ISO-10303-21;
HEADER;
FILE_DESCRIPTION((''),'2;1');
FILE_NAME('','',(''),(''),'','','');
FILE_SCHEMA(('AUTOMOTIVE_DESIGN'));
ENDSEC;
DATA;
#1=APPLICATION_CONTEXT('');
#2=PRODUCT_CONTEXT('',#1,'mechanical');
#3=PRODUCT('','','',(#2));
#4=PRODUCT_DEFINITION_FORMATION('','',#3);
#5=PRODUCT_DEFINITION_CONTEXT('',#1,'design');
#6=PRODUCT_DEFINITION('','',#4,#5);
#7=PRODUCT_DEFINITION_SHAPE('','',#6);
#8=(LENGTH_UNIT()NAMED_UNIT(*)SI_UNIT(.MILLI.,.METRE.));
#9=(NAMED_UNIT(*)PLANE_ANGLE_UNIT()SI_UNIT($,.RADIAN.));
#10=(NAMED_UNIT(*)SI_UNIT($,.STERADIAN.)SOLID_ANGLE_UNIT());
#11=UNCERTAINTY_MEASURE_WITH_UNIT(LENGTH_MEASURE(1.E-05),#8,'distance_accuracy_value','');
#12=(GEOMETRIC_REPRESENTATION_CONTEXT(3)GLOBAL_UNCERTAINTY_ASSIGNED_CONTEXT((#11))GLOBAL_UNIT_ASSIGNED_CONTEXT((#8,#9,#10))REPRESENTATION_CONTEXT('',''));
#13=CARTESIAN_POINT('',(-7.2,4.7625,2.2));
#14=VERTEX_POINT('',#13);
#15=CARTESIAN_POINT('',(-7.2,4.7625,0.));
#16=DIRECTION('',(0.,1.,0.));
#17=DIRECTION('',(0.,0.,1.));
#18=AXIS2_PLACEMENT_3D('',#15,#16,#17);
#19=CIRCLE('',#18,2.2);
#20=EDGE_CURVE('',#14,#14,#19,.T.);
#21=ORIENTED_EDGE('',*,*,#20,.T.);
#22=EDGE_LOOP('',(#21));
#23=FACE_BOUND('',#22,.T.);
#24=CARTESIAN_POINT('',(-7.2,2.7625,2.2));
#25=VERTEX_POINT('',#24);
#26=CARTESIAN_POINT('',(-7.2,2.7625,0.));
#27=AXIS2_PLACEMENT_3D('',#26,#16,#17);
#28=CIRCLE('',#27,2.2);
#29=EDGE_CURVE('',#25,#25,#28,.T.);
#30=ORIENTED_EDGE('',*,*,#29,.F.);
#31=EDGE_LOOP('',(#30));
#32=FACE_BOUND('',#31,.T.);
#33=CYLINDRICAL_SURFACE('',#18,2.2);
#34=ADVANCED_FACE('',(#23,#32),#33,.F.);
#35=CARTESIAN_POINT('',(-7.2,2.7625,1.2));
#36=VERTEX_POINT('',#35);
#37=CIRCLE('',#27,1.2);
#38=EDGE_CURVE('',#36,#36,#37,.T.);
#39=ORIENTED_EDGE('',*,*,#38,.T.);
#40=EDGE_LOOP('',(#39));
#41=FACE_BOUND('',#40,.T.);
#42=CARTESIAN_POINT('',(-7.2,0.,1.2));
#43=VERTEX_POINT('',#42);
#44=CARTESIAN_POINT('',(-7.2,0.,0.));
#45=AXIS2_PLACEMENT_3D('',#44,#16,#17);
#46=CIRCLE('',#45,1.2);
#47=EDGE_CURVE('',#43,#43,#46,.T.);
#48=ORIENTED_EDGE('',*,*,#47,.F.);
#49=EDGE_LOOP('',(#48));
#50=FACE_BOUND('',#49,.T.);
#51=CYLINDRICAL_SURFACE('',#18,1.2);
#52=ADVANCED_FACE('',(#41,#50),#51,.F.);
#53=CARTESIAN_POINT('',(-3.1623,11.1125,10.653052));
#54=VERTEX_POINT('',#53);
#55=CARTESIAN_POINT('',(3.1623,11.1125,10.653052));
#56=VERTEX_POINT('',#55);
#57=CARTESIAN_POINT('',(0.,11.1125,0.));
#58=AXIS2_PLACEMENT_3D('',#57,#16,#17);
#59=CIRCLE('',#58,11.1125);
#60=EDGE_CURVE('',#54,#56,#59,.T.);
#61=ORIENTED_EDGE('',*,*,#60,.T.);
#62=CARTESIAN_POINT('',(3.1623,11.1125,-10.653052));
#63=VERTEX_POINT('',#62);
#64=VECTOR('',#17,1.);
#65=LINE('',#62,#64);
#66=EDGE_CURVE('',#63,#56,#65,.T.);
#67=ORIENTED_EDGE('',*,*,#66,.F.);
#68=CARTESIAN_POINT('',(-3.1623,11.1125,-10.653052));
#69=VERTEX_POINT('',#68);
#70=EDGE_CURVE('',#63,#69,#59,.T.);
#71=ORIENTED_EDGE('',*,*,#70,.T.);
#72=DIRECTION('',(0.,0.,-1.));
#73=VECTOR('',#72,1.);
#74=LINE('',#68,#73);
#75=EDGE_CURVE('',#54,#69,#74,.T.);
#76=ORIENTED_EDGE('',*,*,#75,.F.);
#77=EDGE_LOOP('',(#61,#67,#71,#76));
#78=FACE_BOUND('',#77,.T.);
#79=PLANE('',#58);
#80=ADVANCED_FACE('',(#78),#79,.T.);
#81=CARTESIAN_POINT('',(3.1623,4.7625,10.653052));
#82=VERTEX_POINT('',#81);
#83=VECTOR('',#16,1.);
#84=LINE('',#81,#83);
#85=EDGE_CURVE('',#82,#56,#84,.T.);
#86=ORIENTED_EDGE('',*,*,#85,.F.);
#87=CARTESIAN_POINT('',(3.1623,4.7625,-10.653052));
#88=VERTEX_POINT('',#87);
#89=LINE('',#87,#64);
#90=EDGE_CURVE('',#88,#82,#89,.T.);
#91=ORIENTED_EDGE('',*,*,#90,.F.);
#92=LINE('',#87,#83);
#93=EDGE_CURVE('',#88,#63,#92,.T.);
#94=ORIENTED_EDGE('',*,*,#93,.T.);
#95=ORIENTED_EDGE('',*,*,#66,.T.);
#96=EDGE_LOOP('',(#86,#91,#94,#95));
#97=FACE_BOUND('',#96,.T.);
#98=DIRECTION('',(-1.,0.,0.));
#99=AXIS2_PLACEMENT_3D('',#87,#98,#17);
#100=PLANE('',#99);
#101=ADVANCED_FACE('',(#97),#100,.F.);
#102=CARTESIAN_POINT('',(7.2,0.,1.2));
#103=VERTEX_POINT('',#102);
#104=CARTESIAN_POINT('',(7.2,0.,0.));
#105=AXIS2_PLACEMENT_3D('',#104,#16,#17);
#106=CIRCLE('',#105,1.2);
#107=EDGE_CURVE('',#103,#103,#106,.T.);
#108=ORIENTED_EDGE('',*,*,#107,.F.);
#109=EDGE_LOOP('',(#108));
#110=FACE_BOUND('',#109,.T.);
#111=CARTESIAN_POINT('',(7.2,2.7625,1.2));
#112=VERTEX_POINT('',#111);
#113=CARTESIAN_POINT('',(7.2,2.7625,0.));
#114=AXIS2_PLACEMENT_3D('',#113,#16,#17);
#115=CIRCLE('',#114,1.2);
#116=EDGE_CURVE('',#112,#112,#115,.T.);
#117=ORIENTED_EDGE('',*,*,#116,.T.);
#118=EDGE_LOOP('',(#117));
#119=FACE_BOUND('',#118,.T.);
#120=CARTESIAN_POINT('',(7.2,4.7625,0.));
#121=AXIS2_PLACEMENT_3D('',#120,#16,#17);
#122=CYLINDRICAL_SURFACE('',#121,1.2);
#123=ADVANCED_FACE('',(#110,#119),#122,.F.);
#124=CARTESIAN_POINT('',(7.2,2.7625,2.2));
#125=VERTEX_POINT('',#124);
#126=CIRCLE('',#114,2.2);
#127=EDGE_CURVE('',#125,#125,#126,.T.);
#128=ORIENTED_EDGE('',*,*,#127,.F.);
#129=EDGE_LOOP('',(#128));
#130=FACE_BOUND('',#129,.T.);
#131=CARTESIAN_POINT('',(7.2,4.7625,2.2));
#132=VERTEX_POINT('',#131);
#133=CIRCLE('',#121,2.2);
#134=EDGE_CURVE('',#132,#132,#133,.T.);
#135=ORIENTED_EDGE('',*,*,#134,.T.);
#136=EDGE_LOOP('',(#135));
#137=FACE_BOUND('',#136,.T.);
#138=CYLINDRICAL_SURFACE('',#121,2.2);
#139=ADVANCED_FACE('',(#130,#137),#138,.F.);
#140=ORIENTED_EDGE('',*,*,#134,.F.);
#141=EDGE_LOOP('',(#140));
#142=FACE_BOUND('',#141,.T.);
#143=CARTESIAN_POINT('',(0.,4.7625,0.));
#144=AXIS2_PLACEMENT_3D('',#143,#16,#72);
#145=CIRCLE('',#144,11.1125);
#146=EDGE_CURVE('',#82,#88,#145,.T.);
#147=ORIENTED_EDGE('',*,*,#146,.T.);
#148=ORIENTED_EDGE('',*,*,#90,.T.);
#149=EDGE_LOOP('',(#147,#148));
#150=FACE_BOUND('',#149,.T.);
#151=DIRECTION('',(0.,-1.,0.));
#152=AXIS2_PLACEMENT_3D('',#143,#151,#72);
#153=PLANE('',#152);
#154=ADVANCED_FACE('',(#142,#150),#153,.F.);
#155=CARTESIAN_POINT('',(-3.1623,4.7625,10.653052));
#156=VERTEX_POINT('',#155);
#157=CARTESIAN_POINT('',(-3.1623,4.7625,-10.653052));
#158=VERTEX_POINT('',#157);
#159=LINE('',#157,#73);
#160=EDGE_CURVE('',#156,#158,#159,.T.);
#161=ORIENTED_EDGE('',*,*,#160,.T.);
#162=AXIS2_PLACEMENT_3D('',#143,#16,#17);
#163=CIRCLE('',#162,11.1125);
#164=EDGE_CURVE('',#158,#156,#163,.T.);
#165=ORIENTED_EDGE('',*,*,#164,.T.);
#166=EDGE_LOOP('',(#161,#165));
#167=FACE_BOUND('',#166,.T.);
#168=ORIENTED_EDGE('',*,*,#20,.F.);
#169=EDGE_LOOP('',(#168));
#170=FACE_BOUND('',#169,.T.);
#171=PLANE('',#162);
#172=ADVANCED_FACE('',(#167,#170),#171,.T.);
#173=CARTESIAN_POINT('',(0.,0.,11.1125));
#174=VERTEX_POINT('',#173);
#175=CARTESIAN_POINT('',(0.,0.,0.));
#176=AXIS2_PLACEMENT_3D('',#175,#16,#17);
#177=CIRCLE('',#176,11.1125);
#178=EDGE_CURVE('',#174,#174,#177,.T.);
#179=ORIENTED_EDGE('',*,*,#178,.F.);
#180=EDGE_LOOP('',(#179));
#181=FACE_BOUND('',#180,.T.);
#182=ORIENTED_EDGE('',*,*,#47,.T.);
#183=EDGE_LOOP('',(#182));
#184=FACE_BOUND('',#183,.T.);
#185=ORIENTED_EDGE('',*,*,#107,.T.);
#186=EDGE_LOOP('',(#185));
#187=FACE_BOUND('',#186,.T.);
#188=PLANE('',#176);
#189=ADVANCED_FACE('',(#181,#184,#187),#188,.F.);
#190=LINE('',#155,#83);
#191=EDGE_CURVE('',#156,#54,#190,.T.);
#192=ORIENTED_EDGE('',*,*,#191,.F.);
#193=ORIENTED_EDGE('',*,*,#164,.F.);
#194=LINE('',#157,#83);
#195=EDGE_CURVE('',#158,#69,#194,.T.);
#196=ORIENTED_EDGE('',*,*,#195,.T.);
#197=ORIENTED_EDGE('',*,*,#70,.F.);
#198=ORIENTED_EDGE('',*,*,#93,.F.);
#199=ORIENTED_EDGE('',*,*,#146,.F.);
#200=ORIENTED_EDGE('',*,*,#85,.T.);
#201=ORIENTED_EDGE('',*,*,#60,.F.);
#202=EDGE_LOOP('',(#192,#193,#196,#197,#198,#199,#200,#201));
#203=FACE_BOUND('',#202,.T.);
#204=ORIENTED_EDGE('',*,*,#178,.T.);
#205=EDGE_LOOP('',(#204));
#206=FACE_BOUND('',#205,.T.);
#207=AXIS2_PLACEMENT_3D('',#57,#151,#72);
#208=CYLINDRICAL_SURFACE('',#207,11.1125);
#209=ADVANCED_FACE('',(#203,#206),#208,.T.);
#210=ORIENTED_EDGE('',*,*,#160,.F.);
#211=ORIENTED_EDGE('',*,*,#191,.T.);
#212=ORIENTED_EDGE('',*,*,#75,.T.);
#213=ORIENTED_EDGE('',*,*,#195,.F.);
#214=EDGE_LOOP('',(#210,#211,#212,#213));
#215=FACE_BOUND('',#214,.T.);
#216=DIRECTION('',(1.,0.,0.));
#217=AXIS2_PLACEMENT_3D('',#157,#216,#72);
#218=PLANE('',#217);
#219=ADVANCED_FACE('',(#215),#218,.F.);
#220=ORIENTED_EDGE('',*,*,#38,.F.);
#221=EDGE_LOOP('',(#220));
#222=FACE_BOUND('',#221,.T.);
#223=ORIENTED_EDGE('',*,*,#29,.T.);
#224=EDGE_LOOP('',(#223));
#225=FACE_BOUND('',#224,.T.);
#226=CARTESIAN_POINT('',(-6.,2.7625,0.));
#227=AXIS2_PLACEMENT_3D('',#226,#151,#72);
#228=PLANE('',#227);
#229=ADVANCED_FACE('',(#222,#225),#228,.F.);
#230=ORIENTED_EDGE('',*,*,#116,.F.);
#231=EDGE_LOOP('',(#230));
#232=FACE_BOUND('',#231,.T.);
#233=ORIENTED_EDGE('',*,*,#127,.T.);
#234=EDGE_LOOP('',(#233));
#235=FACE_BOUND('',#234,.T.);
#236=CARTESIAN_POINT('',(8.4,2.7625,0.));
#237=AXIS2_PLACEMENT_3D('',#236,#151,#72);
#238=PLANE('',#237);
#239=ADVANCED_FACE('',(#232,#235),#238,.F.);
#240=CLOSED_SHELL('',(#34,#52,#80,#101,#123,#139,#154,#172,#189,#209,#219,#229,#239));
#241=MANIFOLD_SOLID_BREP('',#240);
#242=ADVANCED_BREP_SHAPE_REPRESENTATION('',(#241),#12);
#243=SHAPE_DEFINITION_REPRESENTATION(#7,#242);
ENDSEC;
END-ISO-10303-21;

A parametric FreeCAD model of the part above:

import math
import FreeCAD as App
import Part
import Sketcher
Q = App.Units.Quantity

doc = App.newDocument("Part")
body = doc.addObject("PartDesign::Body", "Body")

# Sketch on XZ plane
sketch1 = body.newObject("Sketcher::SketchObject", "Sketch")
sketch1.AttachmentSupport = (doc.getObject("XZ_Plane"), [""])
sketch1.MapMode = "FlatFace"
sketch1.addGeometry(Part.Circle(App.Vector(0, 0, 0), App.Vector(0, 0, 1), 11.1125), False)
sketch1.addConstraint(Sketcher.Constraint("Coincident", 0, 3, -1, 1))
sketch1.addConstraint(Sketcher.Constraint("Diameter", 0, Q("0.875 in")))
pad1 = body.newObject("PartDesign::Pad", "Pad")
pad1.Profile = sketch1
pad1.Length = Q("0.4375 in")
pad1.Reversed = True

# Sketch on XZ plane
sketch2 = body.newObject("Sketcher::SketchObject", "Sketch001")
sketch2.AttachmentSupport = (doc.getObject("XZ_Plane"), [""])
sketch2.MapMode = "FlatFace"
sketch2.AttachmentOffset = App.Placement(App.Vector(0, 0, -0.1875 * 25.4), App.Rotation())
sketch2.addGeometry(Part.LineSegment(App.Vector(-3.1623, 10.653052, 0), App.Vector(-3.1623, -10.653052, 0)), False)
sketch2.addGeometry(Part.ArcOfCircle(Part.Circle(App.Vector(0, 0, 0), App.Vector(0, 0, 1), 11.1125), math.radians(106.533233), math.radians(253.466767)), False)
sketch2.addGeometry(Part.LineSegment(App.Vector(3.1623, -10.653052, 0), App.Vector(3.1623, 10.653052, 0)), False)
sketch2.addGeometry(Part.ArcOfCircle(Part.Circle(App.Vector(0, 0, 0), App.Vector(0, 0, 1), 11.1125), math.radians(-73.466767), math.radians(73.466767)), False)
sketch2.addConstraint(Sketcher.Constraint("Coincident", 0, 1, 1, 1))
sketch2.addConstraint(Sketcher.Constraint("Coincident", 1, 2, 0, 2))
sketch2.addConstraint(Sketcher.Constraint("Coincident", 2, 1, 3, 1))
sketch2.addConstraint(Sketcher.Constraint("Coincident", 3, 2, 2, 2))
sketch2.addConstraint(Sketcher.Constraint("Vertical", 0))
sketch2.addConstraint(Sketcher.Constraint("Vertical", 2))
sketch2.addConstraint(Sketcher.Constraint("Coincident", 1, 3, -1, 1))
sketch2.addConstraint(Sketcher.Constraint("Coincident", 3, 3, -1, 1))
sketch2.addConstraint(Sketcher.Constraint("Equal", 1, 3))
sketch2.addConstraint(Sketcher.Constraint("Horizontal", 1, 2, 2, 1))
sketch2.addConstraint(Sketcher.Constraint("Radius", 1, Q("0.4375 in")))
sketch2.addConstraint(Sketcher.Constraint("DistanceX", 1, 2, 2, 1, Q("0.249 in")))
pocket1 = body.newObject("PartDesign::Pocket", "Pocket")
pocket1.Profile = sketch2
pocket1.Length = Q("0.25 in")

# Sketch on XZ plane
sketch3 = body.newObject("Sketcher::SketchObject", "Sketch002")
sketch3.AttachmentSupport = (doc.getObject("XZ_Plane"), [""])
sketch3.MapMode = "FlatFace"
sketch3.AttachmentOffset = App.Placement(App.Vector(0, 0, -0.1875 * 25.4), App.Rotation())
sketch3.addGeometry(Part.Circle(App.Vector(-7.2, 0, 0), App.Vector(0, 0, 1), 1.2), False)
sketch3.addGeometry(Part.Circle(App.Vector(7.2, 0, 0), App.Vector(0, 0, 1), 1.2), False)
sketch3.addConstraint(Sketcher.Constraint("Equal", 0, 1))
sketch3.addConstraint(Sketcher.Constraint("Symmetric", 0, 3, 1, 3, -1, 1))
sketch3.addConstraint(Sketcher.Constraint("PointOnObject", 0, 3, -1))
sketch3.addConstraint(Sketcher.Constraint("Diameter", 0, Q("2.4 mm")))
sketch3.addConstraint(Sketcher.Constraint("DistanceX", 0, 3, -1, 1, Q("7.2 mm")))
doc.recompute()
hole = body.newObject("PartDesign::Hole", "Hole")
hole.Profile = sketch3
hole.ThreadType = "None"
hole.Diameter = 2.4
hole.DepthType = "ThroughAll"
hole.HoleCutType = "Counterbore"
hole.HoleCutDiameter = 4.4
hole.HoleCutDepth = 2
hole.Reversed = True

doc.recompute()
